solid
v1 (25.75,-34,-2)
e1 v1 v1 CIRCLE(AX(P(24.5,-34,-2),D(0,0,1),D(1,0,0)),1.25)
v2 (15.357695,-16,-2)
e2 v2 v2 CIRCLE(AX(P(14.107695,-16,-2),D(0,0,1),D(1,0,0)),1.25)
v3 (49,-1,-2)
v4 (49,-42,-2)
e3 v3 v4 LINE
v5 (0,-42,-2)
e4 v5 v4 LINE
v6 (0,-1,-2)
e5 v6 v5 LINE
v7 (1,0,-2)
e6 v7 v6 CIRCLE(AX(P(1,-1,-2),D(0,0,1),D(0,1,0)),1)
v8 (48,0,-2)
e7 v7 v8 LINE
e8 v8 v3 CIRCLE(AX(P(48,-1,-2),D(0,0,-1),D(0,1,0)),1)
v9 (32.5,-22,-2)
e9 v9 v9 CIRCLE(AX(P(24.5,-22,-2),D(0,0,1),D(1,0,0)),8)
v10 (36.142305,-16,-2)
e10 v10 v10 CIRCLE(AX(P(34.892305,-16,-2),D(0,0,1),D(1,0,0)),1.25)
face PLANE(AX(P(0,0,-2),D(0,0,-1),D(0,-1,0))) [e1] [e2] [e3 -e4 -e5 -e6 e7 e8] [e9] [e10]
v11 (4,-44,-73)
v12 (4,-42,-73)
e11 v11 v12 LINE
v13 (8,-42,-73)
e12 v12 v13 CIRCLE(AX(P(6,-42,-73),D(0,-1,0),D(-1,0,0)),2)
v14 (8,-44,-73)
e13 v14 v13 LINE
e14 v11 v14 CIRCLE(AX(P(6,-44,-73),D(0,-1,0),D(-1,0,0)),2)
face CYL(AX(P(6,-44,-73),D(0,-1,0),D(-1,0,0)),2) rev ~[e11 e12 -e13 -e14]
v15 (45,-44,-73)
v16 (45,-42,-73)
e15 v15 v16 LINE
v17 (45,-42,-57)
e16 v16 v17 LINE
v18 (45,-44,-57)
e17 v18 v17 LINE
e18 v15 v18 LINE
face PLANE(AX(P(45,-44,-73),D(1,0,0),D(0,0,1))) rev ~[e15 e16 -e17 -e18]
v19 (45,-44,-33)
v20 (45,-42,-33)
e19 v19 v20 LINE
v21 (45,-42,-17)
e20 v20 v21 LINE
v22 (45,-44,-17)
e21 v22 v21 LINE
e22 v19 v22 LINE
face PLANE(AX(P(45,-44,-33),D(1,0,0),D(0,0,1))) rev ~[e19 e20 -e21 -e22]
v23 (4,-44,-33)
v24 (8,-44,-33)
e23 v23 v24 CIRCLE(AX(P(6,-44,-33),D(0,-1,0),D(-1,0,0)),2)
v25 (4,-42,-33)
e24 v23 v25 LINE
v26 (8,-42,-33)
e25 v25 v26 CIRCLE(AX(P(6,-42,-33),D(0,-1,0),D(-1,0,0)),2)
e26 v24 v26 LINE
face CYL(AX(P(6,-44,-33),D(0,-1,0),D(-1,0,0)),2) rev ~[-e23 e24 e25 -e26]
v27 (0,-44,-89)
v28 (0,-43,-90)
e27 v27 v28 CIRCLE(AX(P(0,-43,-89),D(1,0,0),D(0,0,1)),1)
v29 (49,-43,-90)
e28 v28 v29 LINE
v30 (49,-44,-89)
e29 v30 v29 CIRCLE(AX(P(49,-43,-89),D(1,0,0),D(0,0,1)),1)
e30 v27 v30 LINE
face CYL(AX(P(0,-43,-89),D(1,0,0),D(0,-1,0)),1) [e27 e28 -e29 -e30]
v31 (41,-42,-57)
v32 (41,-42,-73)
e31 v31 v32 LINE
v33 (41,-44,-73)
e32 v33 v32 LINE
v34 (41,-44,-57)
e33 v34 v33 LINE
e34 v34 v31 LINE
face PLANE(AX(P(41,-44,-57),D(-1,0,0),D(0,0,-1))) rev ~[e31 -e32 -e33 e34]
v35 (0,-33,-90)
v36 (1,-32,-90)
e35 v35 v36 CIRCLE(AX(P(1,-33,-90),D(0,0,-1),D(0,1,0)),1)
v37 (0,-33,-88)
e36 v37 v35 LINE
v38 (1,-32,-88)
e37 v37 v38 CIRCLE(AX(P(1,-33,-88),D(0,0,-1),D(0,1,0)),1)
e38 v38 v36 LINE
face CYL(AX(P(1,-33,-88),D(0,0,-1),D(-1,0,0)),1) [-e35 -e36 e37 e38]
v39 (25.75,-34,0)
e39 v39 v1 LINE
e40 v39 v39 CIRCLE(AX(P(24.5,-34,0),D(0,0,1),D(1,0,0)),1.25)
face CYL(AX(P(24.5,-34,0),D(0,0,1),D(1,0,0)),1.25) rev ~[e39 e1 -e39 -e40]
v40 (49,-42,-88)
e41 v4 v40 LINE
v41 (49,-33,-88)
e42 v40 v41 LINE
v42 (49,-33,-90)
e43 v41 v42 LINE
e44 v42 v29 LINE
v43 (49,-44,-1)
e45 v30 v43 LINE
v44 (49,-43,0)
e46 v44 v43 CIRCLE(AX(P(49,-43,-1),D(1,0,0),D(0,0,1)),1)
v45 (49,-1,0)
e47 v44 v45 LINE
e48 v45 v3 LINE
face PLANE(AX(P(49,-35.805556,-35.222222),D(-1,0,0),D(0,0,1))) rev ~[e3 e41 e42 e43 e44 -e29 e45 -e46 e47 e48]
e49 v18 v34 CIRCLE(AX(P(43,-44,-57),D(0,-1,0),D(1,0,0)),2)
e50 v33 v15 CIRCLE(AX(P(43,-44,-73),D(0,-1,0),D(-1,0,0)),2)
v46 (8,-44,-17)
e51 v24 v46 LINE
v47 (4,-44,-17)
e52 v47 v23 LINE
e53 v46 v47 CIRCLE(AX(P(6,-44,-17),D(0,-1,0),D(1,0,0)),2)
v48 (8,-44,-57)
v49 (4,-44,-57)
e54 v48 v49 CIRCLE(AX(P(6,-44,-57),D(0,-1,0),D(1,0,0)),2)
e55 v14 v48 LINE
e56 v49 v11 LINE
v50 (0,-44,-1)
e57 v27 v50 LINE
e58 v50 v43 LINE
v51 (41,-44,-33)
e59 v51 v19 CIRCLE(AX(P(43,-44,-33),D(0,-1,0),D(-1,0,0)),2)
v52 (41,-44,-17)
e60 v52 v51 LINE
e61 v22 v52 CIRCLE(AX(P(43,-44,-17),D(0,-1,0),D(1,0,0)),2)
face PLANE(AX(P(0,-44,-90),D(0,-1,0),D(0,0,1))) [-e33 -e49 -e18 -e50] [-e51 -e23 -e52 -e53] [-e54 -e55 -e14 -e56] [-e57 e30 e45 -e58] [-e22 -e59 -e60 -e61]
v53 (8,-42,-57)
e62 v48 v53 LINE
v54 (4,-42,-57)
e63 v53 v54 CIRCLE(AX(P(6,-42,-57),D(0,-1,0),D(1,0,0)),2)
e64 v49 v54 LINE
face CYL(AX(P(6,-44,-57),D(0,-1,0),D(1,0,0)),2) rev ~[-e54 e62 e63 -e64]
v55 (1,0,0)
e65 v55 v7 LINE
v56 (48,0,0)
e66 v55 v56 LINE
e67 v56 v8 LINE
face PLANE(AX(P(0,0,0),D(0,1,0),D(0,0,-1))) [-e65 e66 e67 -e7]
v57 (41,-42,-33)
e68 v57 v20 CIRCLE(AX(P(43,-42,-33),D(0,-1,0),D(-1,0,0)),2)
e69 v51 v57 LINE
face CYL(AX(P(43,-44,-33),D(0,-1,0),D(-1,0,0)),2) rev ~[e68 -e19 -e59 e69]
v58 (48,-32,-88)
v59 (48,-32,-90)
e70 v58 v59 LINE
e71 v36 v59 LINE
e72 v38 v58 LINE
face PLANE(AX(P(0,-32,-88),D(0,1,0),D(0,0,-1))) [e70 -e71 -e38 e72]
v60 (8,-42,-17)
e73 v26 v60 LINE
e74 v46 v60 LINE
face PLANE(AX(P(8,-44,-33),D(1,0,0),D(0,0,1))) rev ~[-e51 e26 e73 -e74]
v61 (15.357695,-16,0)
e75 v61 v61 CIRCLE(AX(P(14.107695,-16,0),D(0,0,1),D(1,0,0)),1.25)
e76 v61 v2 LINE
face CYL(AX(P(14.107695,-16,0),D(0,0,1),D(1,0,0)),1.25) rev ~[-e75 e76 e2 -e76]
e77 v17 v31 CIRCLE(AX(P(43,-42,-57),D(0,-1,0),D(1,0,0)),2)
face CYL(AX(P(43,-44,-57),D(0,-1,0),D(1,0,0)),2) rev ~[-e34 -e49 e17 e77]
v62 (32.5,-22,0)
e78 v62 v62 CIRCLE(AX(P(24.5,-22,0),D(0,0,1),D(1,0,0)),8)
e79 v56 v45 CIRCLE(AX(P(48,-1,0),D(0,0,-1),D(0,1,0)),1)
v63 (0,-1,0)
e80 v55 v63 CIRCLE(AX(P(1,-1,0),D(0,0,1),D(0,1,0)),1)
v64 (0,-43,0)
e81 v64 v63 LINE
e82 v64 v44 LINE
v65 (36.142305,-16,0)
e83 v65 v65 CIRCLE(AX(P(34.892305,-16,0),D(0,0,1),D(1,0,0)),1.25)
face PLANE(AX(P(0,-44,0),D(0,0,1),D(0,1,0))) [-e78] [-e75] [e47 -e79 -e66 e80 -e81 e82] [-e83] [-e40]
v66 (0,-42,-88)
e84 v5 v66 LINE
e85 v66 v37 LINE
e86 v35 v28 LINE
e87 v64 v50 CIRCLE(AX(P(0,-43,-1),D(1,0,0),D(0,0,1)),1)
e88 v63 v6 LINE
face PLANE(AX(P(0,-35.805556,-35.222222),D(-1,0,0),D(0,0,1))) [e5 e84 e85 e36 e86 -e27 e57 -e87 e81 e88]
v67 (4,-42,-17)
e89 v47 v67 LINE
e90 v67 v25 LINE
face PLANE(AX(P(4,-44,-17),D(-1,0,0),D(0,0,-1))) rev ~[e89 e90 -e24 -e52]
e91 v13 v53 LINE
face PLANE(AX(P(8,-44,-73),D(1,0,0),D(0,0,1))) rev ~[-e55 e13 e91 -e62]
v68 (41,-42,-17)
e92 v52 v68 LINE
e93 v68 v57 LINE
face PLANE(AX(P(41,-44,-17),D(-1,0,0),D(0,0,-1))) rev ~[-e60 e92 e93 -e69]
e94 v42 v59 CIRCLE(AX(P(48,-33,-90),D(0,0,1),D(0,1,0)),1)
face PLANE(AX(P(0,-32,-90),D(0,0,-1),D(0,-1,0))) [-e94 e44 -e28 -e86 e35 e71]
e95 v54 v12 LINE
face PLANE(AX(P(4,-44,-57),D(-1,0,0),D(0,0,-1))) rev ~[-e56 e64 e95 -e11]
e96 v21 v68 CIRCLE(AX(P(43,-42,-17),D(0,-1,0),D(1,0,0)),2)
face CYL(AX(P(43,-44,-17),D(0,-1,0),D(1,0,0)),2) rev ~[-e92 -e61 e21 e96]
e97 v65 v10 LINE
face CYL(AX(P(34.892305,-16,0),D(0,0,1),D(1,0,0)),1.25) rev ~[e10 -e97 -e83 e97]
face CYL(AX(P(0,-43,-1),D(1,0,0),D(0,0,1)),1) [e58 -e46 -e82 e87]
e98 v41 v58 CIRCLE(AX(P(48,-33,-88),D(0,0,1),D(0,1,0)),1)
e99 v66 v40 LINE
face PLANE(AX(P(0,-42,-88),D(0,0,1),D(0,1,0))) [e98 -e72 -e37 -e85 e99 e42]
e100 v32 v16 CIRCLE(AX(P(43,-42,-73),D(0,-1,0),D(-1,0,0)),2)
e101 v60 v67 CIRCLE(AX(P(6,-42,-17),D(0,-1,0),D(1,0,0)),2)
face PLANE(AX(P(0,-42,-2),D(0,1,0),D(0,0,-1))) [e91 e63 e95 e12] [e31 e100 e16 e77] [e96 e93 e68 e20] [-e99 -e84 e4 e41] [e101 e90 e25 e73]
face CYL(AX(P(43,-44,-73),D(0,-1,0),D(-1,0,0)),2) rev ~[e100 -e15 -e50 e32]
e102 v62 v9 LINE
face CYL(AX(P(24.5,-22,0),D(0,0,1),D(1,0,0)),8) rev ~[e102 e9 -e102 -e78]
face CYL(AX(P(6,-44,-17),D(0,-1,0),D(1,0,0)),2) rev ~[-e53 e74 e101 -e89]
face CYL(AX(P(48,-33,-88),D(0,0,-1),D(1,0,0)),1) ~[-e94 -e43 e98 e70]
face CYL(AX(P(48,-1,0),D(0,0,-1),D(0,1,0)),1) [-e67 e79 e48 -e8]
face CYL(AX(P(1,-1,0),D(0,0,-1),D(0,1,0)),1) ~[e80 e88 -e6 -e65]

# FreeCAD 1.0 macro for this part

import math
import FreeCAD as App
import Part
import Sketcher
Q = App.Units.Quantity


def edges_at(feature, points):
    """Names of the edges that pass closest to the given points."""
    edges = feature.Shape.Edges
    near = lambda p: min(range(len(edges)), key=lambda i: edges[i].distToShape(Part.Vertex(*p))[0])
    return sorted({f"Edge{near(p) + 1}" for p in points})


def add_polygon(sketch, points):
    """Adds a closed chain of lines whose ends are joined by coincident constraints."""
    first, n = sketch.GeometryCount, len(points)
    for a, b in zip(points, points[1:] + points[:1]):
        sketch.addGeometry(Part.LineSegment(App.Vector(*a, 0), App.Vector(*b, 0)), False)
    for i in range(n):
        sketch.addConstraint(Sketcher.Constraint("Coincident", first + i, 2, first + (i + 1) % n, 1))

doc = App.newDocument("Part")
body = doc.addObject("PartDesign::Body", "Body")

# Sketch on YZ plane
sketch1 = body.newObject("Sketcher::SketchObject", "Sketch")
sketch1.AttachmentSupport = (doc.getObject("YZ_Plane"), [""])
sketch1.MapMode = "FlatFace"
add_polygon(sketch1, [(0, -2), (0, 0), (-44, 0), (-44, -90), (-32, -90), (-32, -88), (-42, -88), (-42, -2)])  # lines 0-7
sketch1.addConstraint(Sketcher.Constraint("Vertical", 0))
sketch1.addConstraint(Sketcher.Constraint("Horizontal", 1))
sketch1.addConstraint(Sketcher.Constraint("Vertical", 2))
sketch1.addConstraint(Sketcher.Constraint("Horizontal", 3))
sketch1.addConstraint(Sketcher.Constraint("Vertical", 4))
sketch1.addConstraint(Sketcher.Constraint("Horizontal", 5))
sketch1.addConstraint(Sketcher.Constraint("Vertical", 6))
sketch1.addConstraint(Sketcher.Constraint("Horizontal", 7))
sketch1.addConstraint(Sketcher.Constraint("Coincident", 0, 2, -1, 1))
sketch1.addConstraint(Sketcher.Constraint("Equal", 0, 4))
sketch1.addConstraint(Sketcher.Constraint("DistanceX", 1, 2, 1, 1, Q("44 mm")))
sketch1.addConstraint(Sketcher.Constraint("DistanceX", 3, 1, 3, 2, Q("12 mm")))
sketch1.addConstraint(Sketcher.Constraint("DistanceX", 5, 2, 5, 1, Q("10 mm")))
sketch1.addConstraint(Sketcher.Constraint("DistanceY", 0, 1, 0, 2, Q("2 mm")))
sketch1.addConstraint(Sketcher.Constraint("DistanceY", 2, 2, 2, 1, Q("90 mm")))
pad1 = body.newObject("PartDesign::Pad", "Pad")
pad1.Profile = sketch1
pad1.Length = 49

# Sketch on XY plane
sketch2 = body.newObject("Sketcher::SketchObject", "Sketch001")
sketch2.AttachmentSupport = (doc.getObject("XY_Plane"), [""])
sketch2.MapMode = "FlatFace"
sketch2.addGeometry(Part.Circle(App.Vector(24.5, -34, 0), App.Vector(0, 0, 1), 1.2), False)
sketch2.addConstraint(Sketcher.Constraint("Diameter", 0, Q("2.5 mm")))
sketch2.addConstraint(Sketcher.Constraint("DistanceY", 0, 3, -1, 1, Q("34 mm")))
sketch2.addConstraint(Sketcher.Constraint("DistanceX", -1, 1, 0, 3, Q("24.5 mm")))
pocket1 = body.newObject("PartDesign::Pocket", "Pocket")
pocket1.Profile = sketch2
pocket1.Type = "UpToFirst"

# Sketch on XY plane
sketch3 = body.newObject("Sketcher::SketchObject", "Sketch002")
sketch3.AttachmentSupport = (doc.getObject("XY_Plane"), [""])
sketch3.MapMode = "FlatFace"
sketch3.addGeometry(Part.Circle(App.Vector(14.1, -16, 0), App.Vector(0, 0, 1), 1.2), False)
sketch3.addConstraint(Sketcher.Constraint("Diameter", 0, Q("2.5 mm")))
sketch3.addConstraint(Sketcher.Constraint("DistanceY", 0, 3, -1, 1, Q("16 mm")))
sketch3.addConstraint(Sketcher.Constraint("DistanceX", -1, 1, 0, 3, Q("14.107695 mm")))
pocket2 = body.newObject("PartDesign::Pocket", "Pocket001")
pocket2.Profile = sketch3
pocket2.Type = "UpToFirst"

# Sketch on XY plane
sketch4 = body.newObject("Sketcher::SketchObject", "Sketch003")
sketch4.AttachmentSupport = (doc.getObject("XY_Plane"), [""])
sketch4.MapMode = "FlatFace"
sketch4.addGeometry(Part.Circle(App.Vector(34.9, -16, 0), App.Vector(0, 0, 1), 1.2), False)
sketch4.addConstraint(Sketcher.Constraint("Diameter", 0, Q("2.5 mm")))
sketch4.addConstraint(Sketcher.Constraint("DistanceY", 0, 3, -1, 1, Q("16 mm")))
sketch4.addConstraint(Sketcher.Constraint("DistanceX", -1, 1, 0, 3, Q("34.892305 mm")))
pocket3 = body.newObject("PartDesign::Pocket", "Pocket002")
pocket3.Profile = sketch4
pocket3.Type = "UpToFirst"

# Sketch on XY plane
sketch5 = body.newObject("Sketcher::SketchObject", "Sketch004")
sketch5.AttachmentSupport = (doc.getObject("XY_Plane"), [""])
sketch5.MapMode = "FlatFace"
sketch5.addGeometry(Part.Circle(App.Vector(24, -22, 0), App.Vector(0, 0, 1), 8), False)
sketch5.addConstraint(Sketcher.Constraint("Diameter", 0, Q("16 mm")))
sketch5.addConstraint(Sketcher.Constraint("DistanceY", 0, 3, -1, 1, Q("22 mm")))
sketch5.addConstraint(Sketcher.Constraint("DistanceX", -1, 1, 0, 3, Q("24.5 mm")))
pocket4 = body.newObject("PartDesign::Pocket", "Pocket003")
pocket4.Profile = sketch5
pocket4.Type = "UpToFirst"

# Sketch on XZ plane
sketch6 = body.newObject("Sketcher::SketchObject", "Sketch005")
sketch6.AttachmentSupport = (doc.getObject("XZ_Plane"), [""])
sketch6.MapMode = "FlatFace"
sketch6.AttachmentOffset = App.Placement(App.Vector(0, 0, 44), App.Rotation())
sketch6.addGeometry(Part.LineSegment(App.Vector(41, -17, 0), App.Vector(41, -33, 0)), False)
sketch6.addGeometry(Part.ArcOfCircle(Part.Circle(App.Vector(43, -33, 0), App.Vector(0, 0, 1), 2), math.radians(180), math.radians(360)), False)
sketch6.addGeometry(Part.LineSegment(App.Vector(45, -33, 0), App.Vector(45, -17, 0)), False)
sketch6.addGeometry(Part.ArcOfCircle(Part.Circle(App.Vector(43, -17, 0), App.Vector(0, 0, 1), 2), math.radians(0), math.radians(180)), False)
sketch6.addConstraint(Sketcher.Constraint("Tangent", 0, 2, 1, 1))
sketch6.addConstraint(Sketcher.Constraint("Tangent", 1, 2, 2, 1))
sketch6.addConstraint(Sketcher.Constraint("Tangent", 2, 2, 3, 1))
sketch6.addConstraint(Sketcher.Constraint("Tangent", 3, 2, 0, 1))
sketch6.addConstraint(Sketcher.Constraint("Vertical", 0))
sketch6.addConstraint(Sketcher.Constraint("Vertical", 2))
sketch6.addConstraint(Sketcher.Constraint("Radius", 1, Q("2 mm")))
sketch6.addConstraint(Sketcher.Constraint("DistanceY", 0, 2, 0, 1, Q("16 mm")))
sketch6.addConstraint(Sketcher.Constraint("DistanceX", -1, 1, 1, 3, Q("43 mm")))
sketch6.addConstraint(Sketcher.Constraint("DistanceY", 1, 3, -1, 1, Q("33 mm")))
pocket5 = body.newObject("PartDesign::Pocket", "Pocket004")
pocket5.Profile = sketch6
pocket5.Type = "UpToFirst"

# Sketch on XZ plane
sketch7 = body.newObject("Sketcher::SketchObject", "Sketch006")
sketch7.AttachmentSupport = (doc.getObject("XZ_Plane"), [""])
sketch7.MapMode = "FlatFace"
sketch7.AttachmentOffset = App.Placement(App.Vector(0, 0, 44), App.Rotation())
sketch7.addGeometry(Part.LineSegment(App.Vector(45, -73, 0), App.Vector(45, -57, 0)), False)
sketch7.addGeometry(Part.ArcOfCircle(Part.Circle(App.Vector(43, -57, 0), App.Vector(0, 0, 1), 2), math.radians(0), math.radians(180)), False)
sketch7.addGeometry(Part.LineSegment(App.Vector(41, -57, 0), App.Vector(41, -73, 0)), False)
sketch7.addGeometry(Part.ArcOfCircle(Part.Circle(App.Vector(43, -73, 0), App.Vector(0, 0, 1), 2), math.radians(180), math.radians(360)), False)
sketch7.addConstraint(Sketcher.Constraint("Tangent", 0, 2, 1, 1))
sketch7.addConstraint(Sketcher.Constraint("Tangent", 1, 2, 2, 1))
sketch7.addConstraint(Sketcher.Constraint("Tangent", 2, 2, 3, 1))
sketch7.addConstraint(Sketcher.Constraint("Tangent", 3, 2, 0, 1))
sketch7.addConstraint(Sketcher.Constraint("Vertical", 0))
sketch7.addConstraint(Sketcher.Constraint("Vertical", 2))
sketch7.addConstraint(Sketcher.Constraint("Radius", 1, Q("2 mm")))
sketch7.addConstraint(Sketcher.Constraint("DistanceY", 0, 1, 0, 2, Q("16 mm")))
sketch7.addConstraint(Sketcher.Constraint("DistanceX", -1, 1, 1, 3, Q("43 mm")))
sketch7.addConstraint(Sketcher.Constraint("DistanceY", 1, 3, -1, 1, Q("57 mm")))
pocket6 = body.newObject("PartDesign::Pocket", "Pocket005")
pocket6.Profile = sketch7
pocket6.Type = "UpToFirst"

# Sketch on XZ plane
sketch8 = body.newObject("Sketcher::SketchObject", "Sketch007")
sketch8.AttachmentSupport = (doc.getObject("XZ_Plane"), [""])
sketch8.MapMode = "FlatFace"
sketch8.AttachmentOffset = App.Placement(App.Vector(0, 0, 44), App.Rotation())
sketch8.addGeometry(Part.LineSegment(App.Vector(8, -73, 0), App.Vector(8, -57, 0)), False)
sketch8.addGeometry(Part.ArcOfCircle(Part.Circle(App.Vector(6, -57, 0), App.Vector(0, 0, 1), 2), math.radians(0), math.radians(180)), False)
sketch8.addGeometry(Part.LineSegment(App.Vector(4, -57, 0), App.Vector(4, -73, 0)), False)
sketch8.addGeometry(Part.ArcOfCircle(Part.Circle(App.Vector(6, -73, 0), App.Vector(0, 0, 1), 2), math.radians(180), math.radians(360)), False)
sketch8.addConstraint(Sketcher.Constraint("Tangent", 0, 2, 1, 1))
sketch8.addConstraint(Sketcher.Constraint("Tangent", 1, 2, 2, 1))
sketch8.addConstraint(Sketcher.Constraint("Tangent", 2, 2, 3, 1))
sketch8.addConstraint(Sketcher.Constraint("Tangent", 3, 2, 0, 1))
sketch8.addConstraint(Sketcher.Constraint("Vertical", 0))
sketch8.addConstraint(Sketcher.Constraint("Vertical", 2))
sketch8.addConstraint(Sketcher.Constraint("Radius", 1, Q("2 mm")))
sketch8.addConstraint(Sketcher.Constraint("DistanceY", 0, 1, 0, 2, Q("16 mm")))
sketch8.addConstraint(Sketcher.Constraint("DistanceX", -1, 1, 1, 3, Q("6 mm")))
sketch8.addConstraint(Sketcher.Constraint("DistanceY", 1, 3, -1, 1, Q("57 mm")))
pocket7 = body.newObject("PartDesign::Pocket", "Pocket006")
pocket7.Profile = sketch8
pocket7.Type = "UpToFirst"

# Sketch on XZ plane
sketch9 = body.newObject("Sketcher::SketchObject", "Sketch008")
sketch9.AttachmentSupport = (doc.getObject("XZ_Plane"), [""])
sketch9.MapMode = "FlatFace"
sketch9.AttachmentOffset = App.Placement(App.Vector(0, 0, 44), App.Rotation())
sketch9.addGeometry(Part.LineSegment(App.Vector(4, -17, 0), App.Vector(4, -33, 0)), False)
sketch9.addGeometry(Part.ArcOfCircle(Part.Circle(App.Vector(6, -33, 0), App.Vector(0, 0, 1), 2), math.radians(180), math.radians(360)), False)
sketch9.addGeometry(Part.LineSegment(App.Vector(8, -33, 0), App.Vector(8, -17, 0)), False)
sketch9.addGeometry(Part.ArcOfCircle(Part.Circle(App.Vector(6, -17, 0), App.Vector(0, 0, 1), 2), math.radians(0), math.radians(180)), False)
sketch9.addConstraint(Sketcher.Constraint("Tangent", 0, 2, 1, 1))
sketch9.addConstraint(Sketcher.Constraint("Tangent", 1, 2, 2, 1))
sketch9.addConstraint(Sketcher.Constraint("Tangent", 2, 2, 3, 1))
sketch9.addConstraint(Sketcher.Constraint("Tangent", 3, 2, 0, 1))
sketch9.addConstraint(Sketcher.Constraint("Vertical", 0))
sketch9.addConstraint(Sketcher.Constraint("Vertical", 2))
sketch9.addConstraint(Sketcher.Constraint("Radius", 1, Q("2 mm")))
sketch9.addConstraint(Sketcher.Constraint("DistanceY", 0, 2, 0, 1, Q("16 mm")))
sketch9.addConstraint(Sketcher.Constraint("DistanceX", -1, 1, 1, 3, Q("6 mm")))
sketch9.addConstraint(Sketcher.Constraint("DistanceY", 1, 3, -1, 1, Q("33 mm")))
pocket8 = body.newObject("PartDesign::Pocket", "Pocket007")
pocket8.Profile = sketch9
pocket8.Type = "UpToFirst"
doc.recompute()

fillet = body.newObject("PartDesign::Fillet", "Fillet")
fillet.Base = (pocket8, edges_at(pocket8, [
    (0, 0, -1),
    (24.5, -44, 0),
    (24.5, -44, -90),
    (49, -32, -89),
    (49, 0, -1),
    (0, -32, -89),
]))
fillet.Radius = 1

doc.recompute()
